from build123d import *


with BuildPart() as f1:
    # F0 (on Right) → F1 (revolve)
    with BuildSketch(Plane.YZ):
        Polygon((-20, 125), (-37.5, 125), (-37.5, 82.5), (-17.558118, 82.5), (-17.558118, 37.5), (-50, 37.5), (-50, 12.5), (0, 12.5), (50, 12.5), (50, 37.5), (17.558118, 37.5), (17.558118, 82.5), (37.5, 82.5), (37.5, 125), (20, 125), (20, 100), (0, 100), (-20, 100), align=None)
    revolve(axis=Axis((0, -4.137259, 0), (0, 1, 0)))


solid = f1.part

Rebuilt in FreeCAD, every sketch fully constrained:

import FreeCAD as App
import Part
import Sketcher
from FreeCAD import Vector
Q = App.Units.Quantity


def add_polygon(sketch, points):
    """Adds a closed chain of lines whose ends are joined by coincident constraints."""
    first, n = sketch.GeometryCount, len(points)
    for a, b in zip(points, points[1:] + points[:1]):
        sketch.addGeometry(Part.LineSegment(App.Vector(*a, 0), App.Vector(*b, 0)), False)
    for i in range(n):
        sketch.addConstraint(Sketcher.Constraint("Coincident", first + i, 2, first + (i + 1) % n, 1))

doc = App.newDocument("Part")
body = doc.addObject("PartDesign::Body", "Body")

# Sketch on YZ plane
sketch1 = doc.addObject("Sketcher::SketchObject", "Sketch")
body.addObject(sketch1)
sketch1.AttachmentSupport = (doc.YZ_Plane, [""])
sketch1.MapMode = "FlatFace"
add_polygon(sketch1, [(-20, 125), (-38, 125), (-38, 82), (-18, 82), (-18, 38), (-50, 38), (-50, 12), (50, 12), (50, 38), (18, 38), (18, 82), (38, 82), (38, 125), (20, 125), (20, 100), (-20, 100)])  # lines 0-15
sketch1.addConstraint([
    Sketcher.Constraint("Horizontal", 0),
    Sketcher.Constraint("Vertical", 1),
    Sketcher.Constraint("Horizontal", 2),
    Sketcher.Constraint("Vertical", 3),
    Sketcher.Constraint("Horizontal", 4),
    Sketcher.Constraint("Vertical", 5),
    Sketcher.Constraint("Horizontal", 6),
    Sketcher.Constraint("Vertical", 7),
    Sketcher.Constraint("Horizontal", 8),
    Sketcher.Constraint("Vertical", 9),
    Sketcher.Constraint("Horizontal", 10),
    Sketcher.Constraint("Vertical", 11),
    Sketcher.Constraint("Horizontal", 12),
    Sketcher.Constraint("Vertical", 13),
    Sketcher.Constraint("Horizontal", 14),
    Sketcher.Constraint("Vertical", 15),
    Sketcher.Constraint("Symmetric", 4, 2, 7, 2, -2),
    Sketcher.Constraint("Symmetric", 2, 2, 9, 2, -2),
    Sketcher.Constraint("Symmetric", 0, 2, 11, 2, -2),
    Sketcher.Constraint("Equal", 0, 12),
    Sketcher.Constraint("Equal", 7, 13),
    Sketcher.Constraint("DistanceX", 6, 1, 6, 2, Q("100 mm")),
    Sketcher.Constraint("DistanceX", 14, 2, 14, 1, Q("40 mm")),
    Sketcher.Constraint("DistanceY", 3, 2, 3, 1, Q("45 mm")),
    Sketcher.Constraint("DistanceY", 5, 2, 5, 1, Q("25 mm")),
    Sketcher.Constraint("DistanceX", 0, 2, 0, 1, Q("17.5 mm")),
    Sketcher.Constraint("DistanceY", 1, 2, 1, 1, Q("42.5 mm")),
    Sketcher.Constraint("DistanceY", -1, 1, 0, 2, Q("125 mm")),
    Sketcher.Constraint("DistanceX", 2, 1, 2, 2, Q("19.941882 mm")),
])
revolution = doc.addObject("PartDesign::Revolution", "Revolution")
body.addObject(revolution)
revolution.Profile = sketch1
revolution.ReferenceAxis = (sketch1, ["H_Axis"])
revolution.Angle = 360

doc.recompute()
